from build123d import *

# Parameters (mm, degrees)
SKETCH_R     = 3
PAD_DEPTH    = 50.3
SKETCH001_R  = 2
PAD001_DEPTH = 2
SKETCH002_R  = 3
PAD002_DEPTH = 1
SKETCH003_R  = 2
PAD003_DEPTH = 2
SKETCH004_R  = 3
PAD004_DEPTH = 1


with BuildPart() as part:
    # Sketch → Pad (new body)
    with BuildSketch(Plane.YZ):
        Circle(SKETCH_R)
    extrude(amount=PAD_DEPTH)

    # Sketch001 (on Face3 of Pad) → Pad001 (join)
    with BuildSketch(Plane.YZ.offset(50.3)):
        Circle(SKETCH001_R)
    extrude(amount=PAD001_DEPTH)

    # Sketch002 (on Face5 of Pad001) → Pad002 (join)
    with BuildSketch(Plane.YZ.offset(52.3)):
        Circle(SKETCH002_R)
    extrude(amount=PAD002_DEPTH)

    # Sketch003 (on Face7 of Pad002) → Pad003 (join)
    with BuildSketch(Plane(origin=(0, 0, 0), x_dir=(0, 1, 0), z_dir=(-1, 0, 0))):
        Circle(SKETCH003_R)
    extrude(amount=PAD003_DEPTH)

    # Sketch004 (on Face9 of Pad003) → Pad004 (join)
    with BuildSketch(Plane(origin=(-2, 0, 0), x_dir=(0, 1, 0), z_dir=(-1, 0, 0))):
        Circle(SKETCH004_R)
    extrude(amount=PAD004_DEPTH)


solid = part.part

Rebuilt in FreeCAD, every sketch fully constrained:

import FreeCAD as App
import Part
import Sketcher

V = App.Vector

doc = App.newDocument("Part")
body = doc.addObject("PartDesign::Body", "Body")

sketch1 = body.newObject("Sketcher::SketchObject", "Sketch")
sketch1.AttachmentSupport = (doc.getObject("YZ_Plane"), [""])
sketch1.MapMode = "FlatFace"
sketch1.addGeometry(Part.Circle(V(0, 0, 0), V(0, 0, 1), 3), False)
sketch1.addConstraint([
    Sketcher.Constraint("Coincident", 0, 3, -1, 1),
    Sketcher.Constraint("Diameter", 0, 6.0),
])
pad1 = body.newObject("PartDesign::Pad", "Pad")
pad1.Profile = sketch1
pad1.Length = 50.3

sketch2 = body.newObject("Sketcher::SketchObject", "Sketch001")
sketch2.AttachmentSupport = (doc.getObject("YZ_Plane"), [""])
sketch2.MapMode = "FlatFace"
sketch2.AttachmentOffset = App.Placement(V(0, 0, 50.3), App.Rotation())
sketch2.addGeometry(Part.Circle(V(0, 0, 0), V(0, 0, 1), 2), False)
sketch2.addConstraint([
    Sketcher.Constraint("Coincident", 0, 3, -1, 1),
    Sketcher.Constraint("Diameter", 0, 4.0),
])
pad2 = body.newObject("PartDesign::Pad", "Pad001")
pad2.Profile = sketch2
pad2.Length = 2

sketch3 = body.newObject("Sketcher::SketchObject", "Sketch002")
sketch3.AttachmentSupport = (doc.getObject("YZ_Plane"), [""])
sketch3.MapMode = "FlatFace"
sketch3.AttachmentOffset = App.Placement(V(0, 0, 52.3), App.Rotation())
sketch3.addGeometry(Part.Circle(V(0, 0, 0), V(0, 0, 1), 3), False)
sketch3.addConstraint([
    Sketcher.Constraint("Coincident", 0, 3, -1, 1),
    Sketcher.Constraint("Diameter", 0, 6.0),
])
pad3 = body.newObject("PartDesign::Pad", "Pad002")
pad3.Profile = sketch3
pad3.Length = 1

sketch4 = body.newObject("Sketcher::SketchObject", "Sketch003")
sketch4.AttachmentSupport = (doc.getObject("YZ_Plane"), [""])
sketch4.MapMode = "FlatFace"
sketch4.addGeometry(Part.Circle(V(0, 0, 0), V(0, 0, 1), 2), False)
sketch4.addConstraint([
    Sketcher.Constraint("Coincident", 0, 3, -1, 1),
    Sketcher.Constraint("Diameter", 0, 4.0),
])
pad4 = body.newObject("PartDesign::Pad", "Pad003")
pad4.Profile = sketch4
pad4.Length = 2
pad4.Reversed = True

sketch5 = body.newObject("Sketcher::SketchObject", "Sketch004")
sketch5.AttachmentSupport = (doc.getObject("YZ_Plane"), [""])
sketch5.MapMode = "FlatFace"
sketch5.AttachmentOffset = App.Placement(V(0, 0, -2), App.Rotation())
sketch5.addGeometry(Part.Circle(V(0, 0, 0), V(0, 0, 1), 3), False)
sketch5.addConstraint([
    Sketcher.Constraint("Coincident", 0, 3, -1, 1),
    Sketcher.Constraint("Diameter", 0, 6.0),
])
pad5 = body.newObject("PartDesign::Pad", "Pad004")
pad5.Profile = sketch5
pad5.Length = 1
pad5.Reversed = True

doc.recompute()
